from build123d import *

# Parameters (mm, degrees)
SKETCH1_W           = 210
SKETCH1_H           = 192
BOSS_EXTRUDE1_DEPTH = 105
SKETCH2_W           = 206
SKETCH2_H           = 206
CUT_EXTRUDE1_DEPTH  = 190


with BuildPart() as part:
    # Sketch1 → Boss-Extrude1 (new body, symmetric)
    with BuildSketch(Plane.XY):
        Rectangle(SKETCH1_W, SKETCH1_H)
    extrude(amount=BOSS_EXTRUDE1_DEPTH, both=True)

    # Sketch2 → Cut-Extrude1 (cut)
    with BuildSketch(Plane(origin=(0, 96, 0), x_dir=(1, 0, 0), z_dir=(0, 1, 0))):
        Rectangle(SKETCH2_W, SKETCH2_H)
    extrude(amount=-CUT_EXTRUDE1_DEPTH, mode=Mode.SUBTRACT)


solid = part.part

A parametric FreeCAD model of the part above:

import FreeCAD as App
import Part
import Sketcher
from FreeCAD import Vector


def add_polygon(sketch, points):
    """Adds a closed chain of lines whose ends are joined by coincident constraints."""
    first, n = sketch.GeometryCount, len(points)
    for a, b in zip(points, points[1:] + points[:1]):
        sketch.addGeometry(Part.LineSegment(App.Vector(*a, 0), App.Vector(*b, 0)), False)
    for i in range(n):
        sketch.addConstraint(Sketcher.Constraint("Coincident", first + i, 2, first + (i + 1) % n, 1))

doc = App.newDocument("Part")
body = doc.addObject("PartDesign::Body", "Body")

sketch1 = doc.addObject("Sketcher::SketchObject", "Sketch")
body.addObject(sketch1)
sketch1.AttachmentSupport = (doc.XY_Plane, [""])
sketch1.MapMode = "FlatFace"
add_polygon(sketch1, [(-105, 96), (-105, -96), (105, -96), (105, 96)])
sketch1.addConstraint(Sketcher.Constraint("Vertical", 0))
sketch1.addConstraint(Sketcher.Constraint("Horizontal", 1))
sketch1.addConstraint(Sketcher.Constraint("Vertical", 2))
sketch1.addConstraint(Sketcher.Constraint("Horizontal", 3))
sketch1.addConstraint(Sketcher.Constraint("Symmetric", 0, 2, 2, 2, -1, 1))
sketch1.addConstraint(Sketcher.Constraint("DistanceX", 1, 1, 1, 2, 210.0))
sketch1.addConstraint(Sketcher.Constraint("DistanceY", 0, 2, 0, 1, 192.0))
pad1 = doc.addObject("PartDesign::Pad", "Pad")
body.addObject(pad1)
pad1.Profile = sketch1
pad1.Length = 210
pad1.Midplane = True

sketch2 = doc.addObject("Sketcher::SketchObject", "Sketch001")
body.addObject(sketch2)
sketch2.AttachmentSupport = (doc.XZ_Plane, [""])
sketch2.MapMode = "FlatFace"
sketch2.AttachmentOffset = App.Placement(Vector(0, 0, -96), App.Rotation())
add_polygon(sketch2, [(-103, -103), (-103, 103), (103, 103), (103, -103)])
sketch2.addConstraint(Sketcher.Constraint("Vertical", 0))
sketch2.addConstraint(Sketcher.Constraint("Horizontal", 1))
sketch2.addConstraint(Sketcher.Constraint("Vertical", 2))
sketch2.addConstraint(Sketcher.Constraint("Horizontal", 3))
sketch2.addConstraint(Sketcher.Constraint("Symmetric", 0, 2, 2, 2, -1, 1))
sketch2.addConstraint(Sketcher.Constraint("Equal", 3, 0))
sketch2.addConstraint(Sketcher.Constraint("DistanceX", 1, 1, 1, 2, 206.0))
pocket1 = doc.addObject("PartDesign::Pocket", "Pocket")
body.addObject(pocket1)
pocket1.Profile = sketch2
pocket1.Length = 190
pocket1.Reversed = True

doc.recompute()
